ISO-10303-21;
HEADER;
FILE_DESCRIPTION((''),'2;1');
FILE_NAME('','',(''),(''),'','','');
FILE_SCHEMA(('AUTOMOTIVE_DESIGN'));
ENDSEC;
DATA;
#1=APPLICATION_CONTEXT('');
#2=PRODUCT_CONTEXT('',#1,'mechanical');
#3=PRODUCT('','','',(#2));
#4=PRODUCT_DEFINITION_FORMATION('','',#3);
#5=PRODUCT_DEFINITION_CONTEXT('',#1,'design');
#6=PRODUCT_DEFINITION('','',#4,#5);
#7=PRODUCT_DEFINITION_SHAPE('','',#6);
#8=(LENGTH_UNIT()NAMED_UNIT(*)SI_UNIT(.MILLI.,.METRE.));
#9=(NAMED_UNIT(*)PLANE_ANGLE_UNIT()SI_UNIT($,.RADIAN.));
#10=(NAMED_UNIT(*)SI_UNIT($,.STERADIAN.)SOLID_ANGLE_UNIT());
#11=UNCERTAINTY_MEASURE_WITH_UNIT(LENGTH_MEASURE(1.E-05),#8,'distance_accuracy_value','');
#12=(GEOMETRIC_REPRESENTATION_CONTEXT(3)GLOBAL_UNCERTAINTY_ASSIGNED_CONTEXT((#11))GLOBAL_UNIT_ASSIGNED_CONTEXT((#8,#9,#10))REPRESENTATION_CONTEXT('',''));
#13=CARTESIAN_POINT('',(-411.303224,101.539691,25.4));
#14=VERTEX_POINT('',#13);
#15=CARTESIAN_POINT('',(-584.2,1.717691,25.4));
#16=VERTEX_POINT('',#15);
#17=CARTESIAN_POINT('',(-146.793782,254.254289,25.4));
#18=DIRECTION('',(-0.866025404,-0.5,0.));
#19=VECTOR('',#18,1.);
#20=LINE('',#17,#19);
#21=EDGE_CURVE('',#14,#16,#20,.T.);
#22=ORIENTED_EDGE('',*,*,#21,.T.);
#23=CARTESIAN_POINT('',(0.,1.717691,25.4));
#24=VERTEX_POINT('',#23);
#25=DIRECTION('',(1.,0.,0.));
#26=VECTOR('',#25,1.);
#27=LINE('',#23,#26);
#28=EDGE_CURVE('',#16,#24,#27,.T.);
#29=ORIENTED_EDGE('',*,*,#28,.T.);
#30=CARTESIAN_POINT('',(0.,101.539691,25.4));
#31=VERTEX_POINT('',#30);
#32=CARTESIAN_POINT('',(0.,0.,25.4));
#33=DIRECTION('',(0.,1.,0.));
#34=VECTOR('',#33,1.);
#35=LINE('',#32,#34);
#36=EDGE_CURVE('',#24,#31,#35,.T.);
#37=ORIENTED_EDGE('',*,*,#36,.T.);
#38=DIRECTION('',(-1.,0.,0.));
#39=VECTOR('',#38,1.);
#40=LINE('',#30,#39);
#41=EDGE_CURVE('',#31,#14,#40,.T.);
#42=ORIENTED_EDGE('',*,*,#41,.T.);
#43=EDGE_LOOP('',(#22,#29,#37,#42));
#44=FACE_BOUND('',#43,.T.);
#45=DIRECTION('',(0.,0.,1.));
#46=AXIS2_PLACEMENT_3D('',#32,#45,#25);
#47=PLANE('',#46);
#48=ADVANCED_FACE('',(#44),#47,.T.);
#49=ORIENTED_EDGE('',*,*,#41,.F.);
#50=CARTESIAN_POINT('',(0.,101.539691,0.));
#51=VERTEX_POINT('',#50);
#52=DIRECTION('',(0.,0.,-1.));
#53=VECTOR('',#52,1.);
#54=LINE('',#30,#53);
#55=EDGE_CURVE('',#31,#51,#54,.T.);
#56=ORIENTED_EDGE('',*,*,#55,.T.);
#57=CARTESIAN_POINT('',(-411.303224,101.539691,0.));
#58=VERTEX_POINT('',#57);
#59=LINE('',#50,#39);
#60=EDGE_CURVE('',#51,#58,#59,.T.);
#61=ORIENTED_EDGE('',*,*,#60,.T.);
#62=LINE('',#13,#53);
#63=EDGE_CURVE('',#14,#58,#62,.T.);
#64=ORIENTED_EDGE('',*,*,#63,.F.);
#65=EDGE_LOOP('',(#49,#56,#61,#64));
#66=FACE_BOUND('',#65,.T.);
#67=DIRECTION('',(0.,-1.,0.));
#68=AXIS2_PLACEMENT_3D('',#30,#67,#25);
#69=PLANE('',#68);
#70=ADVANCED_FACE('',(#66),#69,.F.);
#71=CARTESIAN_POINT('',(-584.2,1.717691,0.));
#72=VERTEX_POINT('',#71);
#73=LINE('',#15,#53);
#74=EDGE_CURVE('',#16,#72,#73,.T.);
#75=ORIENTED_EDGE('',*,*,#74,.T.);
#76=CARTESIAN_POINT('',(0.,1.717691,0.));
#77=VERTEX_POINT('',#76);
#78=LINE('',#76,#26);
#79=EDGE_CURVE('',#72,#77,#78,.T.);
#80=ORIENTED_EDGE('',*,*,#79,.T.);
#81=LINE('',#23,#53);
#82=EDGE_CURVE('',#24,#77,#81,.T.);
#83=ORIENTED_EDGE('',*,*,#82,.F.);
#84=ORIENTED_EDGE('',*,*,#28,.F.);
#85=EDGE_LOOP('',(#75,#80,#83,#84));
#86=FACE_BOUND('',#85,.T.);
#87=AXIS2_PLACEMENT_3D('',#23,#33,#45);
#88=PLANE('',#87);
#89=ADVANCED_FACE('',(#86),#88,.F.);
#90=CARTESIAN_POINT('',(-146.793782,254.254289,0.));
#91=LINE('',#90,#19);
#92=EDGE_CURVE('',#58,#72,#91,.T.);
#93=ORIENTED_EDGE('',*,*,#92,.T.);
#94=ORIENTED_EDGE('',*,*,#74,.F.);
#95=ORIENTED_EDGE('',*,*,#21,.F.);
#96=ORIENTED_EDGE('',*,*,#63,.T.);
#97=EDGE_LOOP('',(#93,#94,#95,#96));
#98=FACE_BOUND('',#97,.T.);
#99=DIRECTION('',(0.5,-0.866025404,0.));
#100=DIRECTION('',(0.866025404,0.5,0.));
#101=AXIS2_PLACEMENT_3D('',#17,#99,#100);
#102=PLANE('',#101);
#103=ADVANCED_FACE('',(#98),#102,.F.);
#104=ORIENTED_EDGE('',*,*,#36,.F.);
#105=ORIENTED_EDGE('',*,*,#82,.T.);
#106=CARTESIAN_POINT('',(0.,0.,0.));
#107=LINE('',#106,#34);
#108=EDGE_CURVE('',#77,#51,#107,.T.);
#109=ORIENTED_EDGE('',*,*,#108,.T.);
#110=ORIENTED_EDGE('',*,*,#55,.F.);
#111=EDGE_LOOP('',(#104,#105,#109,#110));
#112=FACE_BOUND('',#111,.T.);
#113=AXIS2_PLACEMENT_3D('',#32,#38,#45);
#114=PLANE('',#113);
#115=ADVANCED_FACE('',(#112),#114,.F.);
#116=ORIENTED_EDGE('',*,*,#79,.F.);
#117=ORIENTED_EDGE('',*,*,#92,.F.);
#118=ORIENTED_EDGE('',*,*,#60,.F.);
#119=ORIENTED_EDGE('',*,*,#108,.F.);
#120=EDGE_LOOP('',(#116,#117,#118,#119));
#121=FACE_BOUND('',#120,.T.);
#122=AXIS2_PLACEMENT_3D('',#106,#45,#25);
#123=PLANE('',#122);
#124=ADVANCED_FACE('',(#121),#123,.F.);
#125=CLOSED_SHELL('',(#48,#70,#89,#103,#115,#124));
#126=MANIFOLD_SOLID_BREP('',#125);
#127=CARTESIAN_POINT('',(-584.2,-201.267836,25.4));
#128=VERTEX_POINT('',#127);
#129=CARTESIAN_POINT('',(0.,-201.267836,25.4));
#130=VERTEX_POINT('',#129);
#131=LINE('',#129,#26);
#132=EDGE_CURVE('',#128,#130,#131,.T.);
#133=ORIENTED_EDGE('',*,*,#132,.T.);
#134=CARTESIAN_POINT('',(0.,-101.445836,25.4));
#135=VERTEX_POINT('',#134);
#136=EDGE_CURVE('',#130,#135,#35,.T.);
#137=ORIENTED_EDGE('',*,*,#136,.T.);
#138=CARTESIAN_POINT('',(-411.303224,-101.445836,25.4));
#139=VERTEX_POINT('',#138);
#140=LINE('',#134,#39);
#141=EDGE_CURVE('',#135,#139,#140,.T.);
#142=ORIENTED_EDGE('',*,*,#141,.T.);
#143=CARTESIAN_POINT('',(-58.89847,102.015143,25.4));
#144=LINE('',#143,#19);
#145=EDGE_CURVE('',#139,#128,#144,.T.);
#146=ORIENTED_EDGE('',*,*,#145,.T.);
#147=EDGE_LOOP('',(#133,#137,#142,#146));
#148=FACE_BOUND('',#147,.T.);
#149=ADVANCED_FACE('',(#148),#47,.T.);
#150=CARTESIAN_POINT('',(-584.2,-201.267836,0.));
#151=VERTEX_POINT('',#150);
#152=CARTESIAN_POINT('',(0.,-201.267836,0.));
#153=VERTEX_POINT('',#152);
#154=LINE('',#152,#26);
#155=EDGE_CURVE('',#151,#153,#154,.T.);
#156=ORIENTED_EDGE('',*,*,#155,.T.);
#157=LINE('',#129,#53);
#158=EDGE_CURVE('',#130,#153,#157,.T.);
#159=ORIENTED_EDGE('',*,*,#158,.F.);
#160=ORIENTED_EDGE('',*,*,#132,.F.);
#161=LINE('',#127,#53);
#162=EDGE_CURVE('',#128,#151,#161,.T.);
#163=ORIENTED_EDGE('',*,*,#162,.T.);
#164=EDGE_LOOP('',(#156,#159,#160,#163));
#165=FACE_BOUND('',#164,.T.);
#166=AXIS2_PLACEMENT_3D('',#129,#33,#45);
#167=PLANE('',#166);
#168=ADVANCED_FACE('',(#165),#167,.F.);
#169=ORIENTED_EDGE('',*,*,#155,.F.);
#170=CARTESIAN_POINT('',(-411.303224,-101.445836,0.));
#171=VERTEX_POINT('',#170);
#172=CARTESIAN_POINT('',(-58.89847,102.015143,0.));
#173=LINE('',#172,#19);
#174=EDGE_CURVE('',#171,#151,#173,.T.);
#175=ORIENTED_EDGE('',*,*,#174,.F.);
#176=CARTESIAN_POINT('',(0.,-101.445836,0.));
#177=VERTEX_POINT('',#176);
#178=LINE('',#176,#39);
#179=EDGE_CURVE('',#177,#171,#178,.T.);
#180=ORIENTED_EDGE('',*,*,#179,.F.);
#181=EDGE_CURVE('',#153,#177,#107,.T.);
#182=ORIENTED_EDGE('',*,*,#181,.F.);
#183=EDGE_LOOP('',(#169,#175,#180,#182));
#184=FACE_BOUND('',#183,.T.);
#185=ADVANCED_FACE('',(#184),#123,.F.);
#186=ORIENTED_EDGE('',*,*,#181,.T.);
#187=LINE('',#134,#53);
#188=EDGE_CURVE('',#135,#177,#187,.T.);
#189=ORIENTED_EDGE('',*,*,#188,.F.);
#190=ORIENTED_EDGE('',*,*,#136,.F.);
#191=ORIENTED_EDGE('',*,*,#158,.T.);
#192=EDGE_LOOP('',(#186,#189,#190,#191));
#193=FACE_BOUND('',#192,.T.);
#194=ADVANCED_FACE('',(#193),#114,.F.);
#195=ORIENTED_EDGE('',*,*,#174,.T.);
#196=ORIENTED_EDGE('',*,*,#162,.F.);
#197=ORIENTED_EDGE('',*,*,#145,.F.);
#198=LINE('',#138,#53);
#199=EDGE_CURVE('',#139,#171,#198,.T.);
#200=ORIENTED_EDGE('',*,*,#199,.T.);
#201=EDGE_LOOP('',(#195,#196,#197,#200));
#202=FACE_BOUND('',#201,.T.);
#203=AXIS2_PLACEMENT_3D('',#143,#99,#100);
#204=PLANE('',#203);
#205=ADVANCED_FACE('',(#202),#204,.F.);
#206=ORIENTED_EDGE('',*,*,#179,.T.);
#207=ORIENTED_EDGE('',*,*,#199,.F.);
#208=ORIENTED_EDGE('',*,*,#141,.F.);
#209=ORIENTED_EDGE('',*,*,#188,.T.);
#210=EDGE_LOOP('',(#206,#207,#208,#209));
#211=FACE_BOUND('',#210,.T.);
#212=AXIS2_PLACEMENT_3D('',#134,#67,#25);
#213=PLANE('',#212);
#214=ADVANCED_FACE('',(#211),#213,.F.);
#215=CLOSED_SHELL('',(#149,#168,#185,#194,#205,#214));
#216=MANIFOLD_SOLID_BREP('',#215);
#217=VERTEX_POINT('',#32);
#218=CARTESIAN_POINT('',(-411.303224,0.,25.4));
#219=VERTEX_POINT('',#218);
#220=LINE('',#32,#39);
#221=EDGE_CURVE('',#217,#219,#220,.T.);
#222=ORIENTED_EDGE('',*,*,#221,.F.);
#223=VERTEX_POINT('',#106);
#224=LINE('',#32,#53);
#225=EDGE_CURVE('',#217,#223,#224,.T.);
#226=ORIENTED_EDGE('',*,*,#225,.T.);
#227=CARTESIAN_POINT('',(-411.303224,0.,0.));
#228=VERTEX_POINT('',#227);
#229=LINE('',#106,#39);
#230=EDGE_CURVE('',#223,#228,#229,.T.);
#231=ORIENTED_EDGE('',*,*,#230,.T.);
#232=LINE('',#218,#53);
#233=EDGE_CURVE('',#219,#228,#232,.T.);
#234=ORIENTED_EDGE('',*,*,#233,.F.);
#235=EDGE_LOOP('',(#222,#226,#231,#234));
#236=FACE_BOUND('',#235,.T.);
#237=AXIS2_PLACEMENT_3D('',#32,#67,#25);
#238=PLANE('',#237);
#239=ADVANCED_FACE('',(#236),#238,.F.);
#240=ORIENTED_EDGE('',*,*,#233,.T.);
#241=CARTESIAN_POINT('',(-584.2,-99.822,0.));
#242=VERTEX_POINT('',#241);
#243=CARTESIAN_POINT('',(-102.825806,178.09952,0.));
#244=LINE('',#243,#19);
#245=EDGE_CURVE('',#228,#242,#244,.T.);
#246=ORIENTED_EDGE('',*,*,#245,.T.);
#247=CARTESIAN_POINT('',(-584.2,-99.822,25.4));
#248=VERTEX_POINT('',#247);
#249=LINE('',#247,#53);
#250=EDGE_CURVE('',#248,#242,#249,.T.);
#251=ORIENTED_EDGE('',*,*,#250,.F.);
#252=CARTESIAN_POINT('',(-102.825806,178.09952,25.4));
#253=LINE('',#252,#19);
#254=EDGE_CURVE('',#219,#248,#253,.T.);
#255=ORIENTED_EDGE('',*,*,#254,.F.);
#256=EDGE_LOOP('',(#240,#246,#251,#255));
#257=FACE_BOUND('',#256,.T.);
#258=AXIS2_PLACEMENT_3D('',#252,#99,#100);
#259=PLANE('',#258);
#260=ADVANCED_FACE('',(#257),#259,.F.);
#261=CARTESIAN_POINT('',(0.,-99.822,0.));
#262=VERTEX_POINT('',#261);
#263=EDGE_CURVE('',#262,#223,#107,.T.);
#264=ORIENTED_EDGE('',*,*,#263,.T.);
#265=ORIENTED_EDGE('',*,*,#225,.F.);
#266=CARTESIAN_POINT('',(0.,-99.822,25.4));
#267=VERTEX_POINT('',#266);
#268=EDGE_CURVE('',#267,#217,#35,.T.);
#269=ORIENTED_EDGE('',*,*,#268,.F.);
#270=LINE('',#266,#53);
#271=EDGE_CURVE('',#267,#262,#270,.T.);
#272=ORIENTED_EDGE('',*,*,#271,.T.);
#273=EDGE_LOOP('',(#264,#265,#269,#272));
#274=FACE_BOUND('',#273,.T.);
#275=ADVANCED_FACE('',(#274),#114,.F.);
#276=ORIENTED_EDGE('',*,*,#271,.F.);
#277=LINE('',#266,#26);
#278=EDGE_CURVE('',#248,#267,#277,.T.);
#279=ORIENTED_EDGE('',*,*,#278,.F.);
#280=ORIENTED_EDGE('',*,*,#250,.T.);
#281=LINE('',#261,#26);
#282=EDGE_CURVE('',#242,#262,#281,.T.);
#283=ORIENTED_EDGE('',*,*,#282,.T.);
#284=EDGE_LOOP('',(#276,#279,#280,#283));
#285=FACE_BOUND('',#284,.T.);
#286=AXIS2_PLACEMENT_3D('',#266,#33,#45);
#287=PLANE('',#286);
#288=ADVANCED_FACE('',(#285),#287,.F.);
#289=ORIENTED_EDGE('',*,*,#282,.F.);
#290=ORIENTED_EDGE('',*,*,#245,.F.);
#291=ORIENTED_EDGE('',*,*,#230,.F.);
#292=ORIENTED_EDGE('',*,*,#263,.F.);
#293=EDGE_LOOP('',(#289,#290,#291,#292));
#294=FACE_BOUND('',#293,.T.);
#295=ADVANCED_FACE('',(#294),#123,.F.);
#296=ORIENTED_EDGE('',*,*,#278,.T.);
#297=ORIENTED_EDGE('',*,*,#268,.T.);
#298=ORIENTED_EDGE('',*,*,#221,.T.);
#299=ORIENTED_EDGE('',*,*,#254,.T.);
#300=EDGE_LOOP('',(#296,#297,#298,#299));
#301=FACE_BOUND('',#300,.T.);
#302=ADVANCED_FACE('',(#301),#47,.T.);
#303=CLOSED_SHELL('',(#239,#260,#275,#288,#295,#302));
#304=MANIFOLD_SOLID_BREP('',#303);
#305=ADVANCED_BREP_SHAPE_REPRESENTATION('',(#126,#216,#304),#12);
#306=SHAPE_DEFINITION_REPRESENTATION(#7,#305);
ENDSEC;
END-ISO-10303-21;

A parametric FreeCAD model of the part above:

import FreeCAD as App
import Part
import Sketcher
Q = App.Units.Quantity


def add_polygon(sketch, points):
    """Adds a closed chain of lines whose ends are joined by coincident constraints."""
    first, n = sketch.GeometryCount, len(points)
    for a, b in zip(points, points[1:] + points[:1]):
        sketch.addGeometry(Part.LineSegment(App.Vector(*a, 0), App.Vector(*b, 0)), False)
    for i in range(n):
        sketch.addConstraint(Sketcher.Constraint("Coincident", first + i, 2, first + (i + 1) % n, 1))

doc = App.newDocument("Part")
body = doc.addObject("PartDesign::Body", "Body")

sketch1 = body.newObject("Sketcher::SketchObject", "Sketch")
sketch1.AttachmentSupport = (doc.getObject("XY_Plane"), [""])
sketch1.MapMode = "FlatFace"
add_polygon(sketch1, [(0, 0), (-411.303224, 0), (-584.2, -99.822), (0, -99.822)])
sketch1.addConstraint([
    Sketcher.Constraint("Horizontal", 0),
    Sketcher.Constraint("Horizontal", 2),
    Sketcher.Constraint("Vertical", 3),
    Sketcher.Constraint("Coincident", 3, 2, -1, 1),
    Sketcher.Constraint("DistanceX", 2, 1, 2, 2, Q("23 in")),
    Sketcher.Constraint("Angle", 1, Q("-150 deg")),
    Sketcher.Constraint("DistanceY", 3, 1, 3, 2, Q("3.93 in")),
])
pad1 = body.newObject("PartDesign::Pad", "Pad")
pad1.Profile = sketch1
pad1.Length = Q("1 in")
body2 = doc.addObject("PartDesign::Body", "Body001")

sketch2 = body2.newObject("Sketcher::SketchObject", "Sketch001")
sketch2.AttachmentSupport = (doc.getObject("XY_Plane001"), [""])
sketch2.MapMode = "FlatFace"
add_polygon(sketch2, [(0, 101.539691), (-411.303224, 101.539691), (-584.2, 1.717691), (0, 1.717691)])
sketch2.addConstraint([
    Sketcher.Constraint("Horizontal", 0),
    Sketcher.Constraint("Horizontal", 2),
    Sketcher.Constraint("Vertical", 3),
    Sketcher.Constraint("PointOnObject", 2, 2, -2),
    Sketcher.Constraint("DistanceX", 2, 1, 2, 2, Q("23 in")),
    Sketcher.Constraint("Angle", 1, Q("-150 deg")),
    Sketcher.Constraint("DistanceY", 3, 1, 3, 2, Q("3.93 in")),
    Sketcher.Constraint("DistanceY", -1, 1, 0, 2, Q("101.539691 mm")),
])
pad2 = body2.newObject("PartDesign::Pad", "Pad001")
pad2.Profile = sketch2
pad2.Length = Q("1 in")
body3 = doc.addObject("PartDesign::Body", "Body002")

sketch3 = body3.newObject("Sketcher::SketchObject", "Sketch002")
sketch3.AttachmentSupport = (doc.getObject("XY_Plane002"), [""])
sketch3.MapMode = "FlatFace"
add_polygon(sketch3, [(0, -101.445836), (-411.303224, -101.445836), (-584.2, -201.267836), (0, -201.267836)])
sketch3.addConstraint([
    Sketcher.Constraint("Horizontal", 0),
    Sketcher.Constraint("Horizontal", 2),
    Sketcher.Constraint("Vertical", 3),
    Sketcher.Constraint("PointOnObject", 2, 2, -2),
    Sketcher.Constraint("DistanceX", 2, 1, 2, 2, Q("23 in")),
    Sketcher.Constraint("Angle", 1, Q("-150 deg")),
    Sketcher.Constraint("DistanceY", 3, 1, 3, 2, Q("3.93 in")),
    Sketcher.Constraint("DistanceY", 0, 2, -1, 1, Q("101.445836 mm")),
])
pad3 = body3.newObject("PartDesign::Pad", "Pad002")
pad3.Profile = sketch3
pad3.Length = Q("1 in")

doc.recompute()
